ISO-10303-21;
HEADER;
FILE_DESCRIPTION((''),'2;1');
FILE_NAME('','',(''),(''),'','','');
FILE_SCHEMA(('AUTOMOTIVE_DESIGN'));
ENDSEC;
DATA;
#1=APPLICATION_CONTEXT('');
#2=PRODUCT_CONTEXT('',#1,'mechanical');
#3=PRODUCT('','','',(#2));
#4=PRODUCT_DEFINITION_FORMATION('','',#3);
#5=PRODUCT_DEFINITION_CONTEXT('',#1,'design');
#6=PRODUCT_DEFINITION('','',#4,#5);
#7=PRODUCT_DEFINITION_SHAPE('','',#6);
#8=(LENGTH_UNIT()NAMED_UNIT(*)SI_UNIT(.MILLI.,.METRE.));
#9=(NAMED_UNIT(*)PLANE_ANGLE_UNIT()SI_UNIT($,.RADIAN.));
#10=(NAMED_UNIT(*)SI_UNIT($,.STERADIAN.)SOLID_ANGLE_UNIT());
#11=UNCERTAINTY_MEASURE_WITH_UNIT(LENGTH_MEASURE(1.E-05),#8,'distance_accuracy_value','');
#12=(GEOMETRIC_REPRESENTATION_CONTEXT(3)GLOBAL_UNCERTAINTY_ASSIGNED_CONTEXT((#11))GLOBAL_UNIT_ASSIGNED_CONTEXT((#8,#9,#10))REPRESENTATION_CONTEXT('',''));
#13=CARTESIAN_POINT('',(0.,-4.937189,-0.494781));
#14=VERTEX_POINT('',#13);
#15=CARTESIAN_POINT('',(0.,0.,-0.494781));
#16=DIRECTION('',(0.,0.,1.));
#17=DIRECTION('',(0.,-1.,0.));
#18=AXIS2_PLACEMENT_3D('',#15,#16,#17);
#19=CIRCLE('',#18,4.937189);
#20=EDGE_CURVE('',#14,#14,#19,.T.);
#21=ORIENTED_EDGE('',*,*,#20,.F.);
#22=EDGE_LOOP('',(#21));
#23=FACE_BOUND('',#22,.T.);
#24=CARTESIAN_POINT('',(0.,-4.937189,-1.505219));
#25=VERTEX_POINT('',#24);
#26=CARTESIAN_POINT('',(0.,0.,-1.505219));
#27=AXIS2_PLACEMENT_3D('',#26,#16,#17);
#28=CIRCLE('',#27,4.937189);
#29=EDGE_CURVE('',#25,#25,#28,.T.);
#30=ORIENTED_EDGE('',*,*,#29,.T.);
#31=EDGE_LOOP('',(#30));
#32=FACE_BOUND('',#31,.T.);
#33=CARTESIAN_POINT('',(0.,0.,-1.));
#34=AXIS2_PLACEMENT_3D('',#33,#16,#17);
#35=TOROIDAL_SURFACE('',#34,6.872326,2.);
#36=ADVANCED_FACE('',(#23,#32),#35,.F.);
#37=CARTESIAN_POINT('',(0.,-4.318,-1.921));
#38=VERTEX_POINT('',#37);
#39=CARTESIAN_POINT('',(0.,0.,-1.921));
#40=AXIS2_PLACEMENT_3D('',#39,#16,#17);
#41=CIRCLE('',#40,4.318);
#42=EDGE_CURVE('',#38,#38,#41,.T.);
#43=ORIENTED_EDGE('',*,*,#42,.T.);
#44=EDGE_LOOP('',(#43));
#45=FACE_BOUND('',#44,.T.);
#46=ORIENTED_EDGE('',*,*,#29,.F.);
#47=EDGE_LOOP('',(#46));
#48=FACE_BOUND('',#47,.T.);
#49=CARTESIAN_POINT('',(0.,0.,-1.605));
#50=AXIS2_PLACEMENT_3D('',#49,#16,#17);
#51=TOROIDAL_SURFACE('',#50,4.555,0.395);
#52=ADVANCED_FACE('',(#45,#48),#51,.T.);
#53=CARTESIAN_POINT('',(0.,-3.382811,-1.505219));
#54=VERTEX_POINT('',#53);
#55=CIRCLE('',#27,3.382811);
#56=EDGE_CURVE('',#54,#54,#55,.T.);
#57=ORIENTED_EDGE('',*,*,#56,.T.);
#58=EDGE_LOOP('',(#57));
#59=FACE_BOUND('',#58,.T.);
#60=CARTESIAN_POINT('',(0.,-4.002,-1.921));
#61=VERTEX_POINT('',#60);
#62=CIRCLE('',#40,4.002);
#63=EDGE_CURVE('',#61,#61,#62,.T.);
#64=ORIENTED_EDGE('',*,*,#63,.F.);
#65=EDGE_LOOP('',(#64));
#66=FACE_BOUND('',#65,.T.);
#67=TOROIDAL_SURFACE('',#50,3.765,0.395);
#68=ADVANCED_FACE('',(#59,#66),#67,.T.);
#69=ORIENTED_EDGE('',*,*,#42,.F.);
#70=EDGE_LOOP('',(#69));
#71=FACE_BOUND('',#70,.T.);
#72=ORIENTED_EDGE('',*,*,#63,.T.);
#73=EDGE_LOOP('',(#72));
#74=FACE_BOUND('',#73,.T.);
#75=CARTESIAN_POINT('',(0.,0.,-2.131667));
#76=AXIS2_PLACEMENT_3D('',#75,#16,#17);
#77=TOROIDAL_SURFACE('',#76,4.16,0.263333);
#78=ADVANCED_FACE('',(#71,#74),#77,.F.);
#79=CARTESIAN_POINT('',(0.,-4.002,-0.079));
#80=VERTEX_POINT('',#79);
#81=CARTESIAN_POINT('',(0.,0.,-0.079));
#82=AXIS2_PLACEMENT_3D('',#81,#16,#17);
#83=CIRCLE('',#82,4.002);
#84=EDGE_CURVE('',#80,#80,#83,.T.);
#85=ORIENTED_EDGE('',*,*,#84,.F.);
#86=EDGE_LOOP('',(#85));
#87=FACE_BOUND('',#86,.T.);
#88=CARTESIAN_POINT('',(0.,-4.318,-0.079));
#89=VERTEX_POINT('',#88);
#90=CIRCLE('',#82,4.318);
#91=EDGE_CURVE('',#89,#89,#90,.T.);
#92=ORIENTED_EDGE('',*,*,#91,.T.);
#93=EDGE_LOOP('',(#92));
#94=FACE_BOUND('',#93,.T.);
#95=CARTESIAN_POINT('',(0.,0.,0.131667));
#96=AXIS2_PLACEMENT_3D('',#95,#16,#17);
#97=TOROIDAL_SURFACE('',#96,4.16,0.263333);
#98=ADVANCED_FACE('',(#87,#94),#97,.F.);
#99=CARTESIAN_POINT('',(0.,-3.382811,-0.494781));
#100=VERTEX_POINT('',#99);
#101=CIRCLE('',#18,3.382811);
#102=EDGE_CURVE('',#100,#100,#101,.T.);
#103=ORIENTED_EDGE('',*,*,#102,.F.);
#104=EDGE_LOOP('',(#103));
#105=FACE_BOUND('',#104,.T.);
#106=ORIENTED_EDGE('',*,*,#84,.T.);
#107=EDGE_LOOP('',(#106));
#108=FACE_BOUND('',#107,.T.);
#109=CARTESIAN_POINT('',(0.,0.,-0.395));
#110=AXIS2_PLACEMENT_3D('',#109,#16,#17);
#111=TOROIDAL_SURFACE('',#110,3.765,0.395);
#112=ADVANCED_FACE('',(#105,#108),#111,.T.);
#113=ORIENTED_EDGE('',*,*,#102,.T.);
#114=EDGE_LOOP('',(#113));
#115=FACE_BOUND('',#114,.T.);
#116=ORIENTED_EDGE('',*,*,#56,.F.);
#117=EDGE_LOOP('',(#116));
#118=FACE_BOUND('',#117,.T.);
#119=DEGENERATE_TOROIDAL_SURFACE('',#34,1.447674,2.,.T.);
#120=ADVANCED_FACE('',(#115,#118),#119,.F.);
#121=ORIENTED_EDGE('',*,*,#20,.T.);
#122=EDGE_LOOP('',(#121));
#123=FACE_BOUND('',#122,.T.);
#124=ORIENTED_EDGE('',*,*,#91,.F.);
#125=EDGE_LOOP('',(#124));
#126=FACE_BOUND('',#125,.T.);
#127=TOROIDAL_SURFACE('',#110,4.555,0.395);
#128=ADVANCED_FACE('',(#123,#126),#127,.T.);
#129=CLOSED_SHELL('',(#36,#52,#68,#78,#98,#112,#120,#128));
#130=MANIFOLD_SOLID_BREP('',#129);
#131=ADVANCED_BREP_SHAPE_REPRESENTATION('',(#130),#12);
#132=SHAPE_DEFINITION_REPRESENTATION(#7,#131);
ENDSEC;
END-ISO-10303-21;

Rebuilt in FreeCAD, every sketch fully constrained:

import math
import FreeCAD as App
import Part
import Sketcher
from FreeCAD import Vector

doc = App.newDocument("Part")
body = doc.addObject("PartDesign::Body", "Body")

# Sketch on YZ plane
sketch1 = body.newObject("Sketcher::SketchObject", "Sketch")
sketch1.AttachmentSupport = (doc.getObject("YZ_Plane"), [""])
sketch1.MapMode = "FlatFace"
sketch1.addGeometry([
    Part.ArcOfCircle(Part.Circle(Vector(4.555, -0.395, 0), Vector(0, 0, 1), 0.395), math.radians(-14.631989), math.radians(126.869897)),  # 0
    Part.ArcOfCircle(Part.Circle(Vector(4.16, 0.131667, 0), Vector(0, 0, 1), 0.263333), math.radians(-126.869898), math.radians(-53.130102)),  # 1
    Part.ArcOfCircle(Part.Circle(Vector(3.765, -0.395, 0), Vector(0, 0, 1), 0.395), math.radians(53.130103), math.radians(194.631989)),  # 2
    Part.ArcOfCircle(Part.Circle(Vector(1.447674, -1, 0), Vector(0, 0, 1), 2), math.radians(-14.631989), math.radians(14.631989)),  # 3
    Part.ArcOfCircle(Part.Circle(Vector(3.765, -1.605, 0), Vector(0, 0, 1), 0.395), math.radians(165.368011), math.radians(306.869897)),  # 4
    Part.ArcOfCircle(Part.Circle(Vector(4.16, -2.131667, 0), Vector(0, 0, 1), 0.263333), math.radians(53.130102), math.radians(126.869898)),  # 5
    Part.ArcOfCircle(Part.Circle(Vector(4.555, -1.605, 0), Vector(0, 0, 1), 0.395), math.radians(-126.869897), math.radians(14.631989)),  # 6
    Part.ArcOfCircle(Part.Circle(Vector(6.872326, -1, 0), Vector(0, 0, 1), 2), math.radians(165.368011), math.radians(194.631989)),  # 7
], False)
sketch1.addConstraint([
    Sketcher.Constraint("Tangent", 0, 2, 1, 2),
    Sketcher.Constraint("Tangent", 1, 1, 2, 1),
    Sketcher.Constraint("Tangent", 2, 2, 3, 2),
    Sketcher.Constraint("Tangent", 3, 1, 4, 1),
    Sketcher.Constraint("Tangent", 4, 2, 5, 2),
    Sketcher.Constraint("Tangent", 5, 1, 6, 1),
    Sketcher.Constraint("Tangent", 6, 2, 7, 2),
    Sketcher.Constraint("Tangent", 7, 1, 0, 1),
    Sketcher.Constraint("Equal", 0, 2),
    Sketcher.Constraint("Equal", 2, 4),
    Sketcher.Constraint("Equal", 1, 5),
    Sketcher.Constraint("Equal", 4, 6),
    Sketcher.Constraint("Equal", 3, 7),
    Sketcher.Constraint("Horizontal", 0, 3, 2, 3),
    Sketcher.Constraint("Horizontal", 4, 3, 6, 3),
    Sketcher.Constraint("Horizontal", 3, 3, 7, 3),
    Sketcher.Constraint("Vertical", 2, 3, 4, 3),
    Sketcher.Constraint("Radius", 3, 2.0),
    Sketcher.Constraint("DistanceY", 3, 3, -1, 1, 1.0),
    Sketcher.Constraint("Radius", 0, 0.395),
    Sketcher.Constraint("DistanceX", -1, 1, 1, 3, 4.16),
    Sketcher.Constraint("DistanceX", 2, 3, 0, 3, 0.79),
    Sketcher.Constraint("DistanceY", 4, 3, 2, 3, 1.21),
    Sketcher.Constraint("DistanceX", -1, 1, 0, 2, 4.318),
])
revolution = body.newObject("PartDesign::Revolution", "Revolution")
revolution.Profile = sketch1
revolution.ReferenceAxis = (sketch1, ["V_Axis"])
revolution.Angle = 360

doc.recompute()
